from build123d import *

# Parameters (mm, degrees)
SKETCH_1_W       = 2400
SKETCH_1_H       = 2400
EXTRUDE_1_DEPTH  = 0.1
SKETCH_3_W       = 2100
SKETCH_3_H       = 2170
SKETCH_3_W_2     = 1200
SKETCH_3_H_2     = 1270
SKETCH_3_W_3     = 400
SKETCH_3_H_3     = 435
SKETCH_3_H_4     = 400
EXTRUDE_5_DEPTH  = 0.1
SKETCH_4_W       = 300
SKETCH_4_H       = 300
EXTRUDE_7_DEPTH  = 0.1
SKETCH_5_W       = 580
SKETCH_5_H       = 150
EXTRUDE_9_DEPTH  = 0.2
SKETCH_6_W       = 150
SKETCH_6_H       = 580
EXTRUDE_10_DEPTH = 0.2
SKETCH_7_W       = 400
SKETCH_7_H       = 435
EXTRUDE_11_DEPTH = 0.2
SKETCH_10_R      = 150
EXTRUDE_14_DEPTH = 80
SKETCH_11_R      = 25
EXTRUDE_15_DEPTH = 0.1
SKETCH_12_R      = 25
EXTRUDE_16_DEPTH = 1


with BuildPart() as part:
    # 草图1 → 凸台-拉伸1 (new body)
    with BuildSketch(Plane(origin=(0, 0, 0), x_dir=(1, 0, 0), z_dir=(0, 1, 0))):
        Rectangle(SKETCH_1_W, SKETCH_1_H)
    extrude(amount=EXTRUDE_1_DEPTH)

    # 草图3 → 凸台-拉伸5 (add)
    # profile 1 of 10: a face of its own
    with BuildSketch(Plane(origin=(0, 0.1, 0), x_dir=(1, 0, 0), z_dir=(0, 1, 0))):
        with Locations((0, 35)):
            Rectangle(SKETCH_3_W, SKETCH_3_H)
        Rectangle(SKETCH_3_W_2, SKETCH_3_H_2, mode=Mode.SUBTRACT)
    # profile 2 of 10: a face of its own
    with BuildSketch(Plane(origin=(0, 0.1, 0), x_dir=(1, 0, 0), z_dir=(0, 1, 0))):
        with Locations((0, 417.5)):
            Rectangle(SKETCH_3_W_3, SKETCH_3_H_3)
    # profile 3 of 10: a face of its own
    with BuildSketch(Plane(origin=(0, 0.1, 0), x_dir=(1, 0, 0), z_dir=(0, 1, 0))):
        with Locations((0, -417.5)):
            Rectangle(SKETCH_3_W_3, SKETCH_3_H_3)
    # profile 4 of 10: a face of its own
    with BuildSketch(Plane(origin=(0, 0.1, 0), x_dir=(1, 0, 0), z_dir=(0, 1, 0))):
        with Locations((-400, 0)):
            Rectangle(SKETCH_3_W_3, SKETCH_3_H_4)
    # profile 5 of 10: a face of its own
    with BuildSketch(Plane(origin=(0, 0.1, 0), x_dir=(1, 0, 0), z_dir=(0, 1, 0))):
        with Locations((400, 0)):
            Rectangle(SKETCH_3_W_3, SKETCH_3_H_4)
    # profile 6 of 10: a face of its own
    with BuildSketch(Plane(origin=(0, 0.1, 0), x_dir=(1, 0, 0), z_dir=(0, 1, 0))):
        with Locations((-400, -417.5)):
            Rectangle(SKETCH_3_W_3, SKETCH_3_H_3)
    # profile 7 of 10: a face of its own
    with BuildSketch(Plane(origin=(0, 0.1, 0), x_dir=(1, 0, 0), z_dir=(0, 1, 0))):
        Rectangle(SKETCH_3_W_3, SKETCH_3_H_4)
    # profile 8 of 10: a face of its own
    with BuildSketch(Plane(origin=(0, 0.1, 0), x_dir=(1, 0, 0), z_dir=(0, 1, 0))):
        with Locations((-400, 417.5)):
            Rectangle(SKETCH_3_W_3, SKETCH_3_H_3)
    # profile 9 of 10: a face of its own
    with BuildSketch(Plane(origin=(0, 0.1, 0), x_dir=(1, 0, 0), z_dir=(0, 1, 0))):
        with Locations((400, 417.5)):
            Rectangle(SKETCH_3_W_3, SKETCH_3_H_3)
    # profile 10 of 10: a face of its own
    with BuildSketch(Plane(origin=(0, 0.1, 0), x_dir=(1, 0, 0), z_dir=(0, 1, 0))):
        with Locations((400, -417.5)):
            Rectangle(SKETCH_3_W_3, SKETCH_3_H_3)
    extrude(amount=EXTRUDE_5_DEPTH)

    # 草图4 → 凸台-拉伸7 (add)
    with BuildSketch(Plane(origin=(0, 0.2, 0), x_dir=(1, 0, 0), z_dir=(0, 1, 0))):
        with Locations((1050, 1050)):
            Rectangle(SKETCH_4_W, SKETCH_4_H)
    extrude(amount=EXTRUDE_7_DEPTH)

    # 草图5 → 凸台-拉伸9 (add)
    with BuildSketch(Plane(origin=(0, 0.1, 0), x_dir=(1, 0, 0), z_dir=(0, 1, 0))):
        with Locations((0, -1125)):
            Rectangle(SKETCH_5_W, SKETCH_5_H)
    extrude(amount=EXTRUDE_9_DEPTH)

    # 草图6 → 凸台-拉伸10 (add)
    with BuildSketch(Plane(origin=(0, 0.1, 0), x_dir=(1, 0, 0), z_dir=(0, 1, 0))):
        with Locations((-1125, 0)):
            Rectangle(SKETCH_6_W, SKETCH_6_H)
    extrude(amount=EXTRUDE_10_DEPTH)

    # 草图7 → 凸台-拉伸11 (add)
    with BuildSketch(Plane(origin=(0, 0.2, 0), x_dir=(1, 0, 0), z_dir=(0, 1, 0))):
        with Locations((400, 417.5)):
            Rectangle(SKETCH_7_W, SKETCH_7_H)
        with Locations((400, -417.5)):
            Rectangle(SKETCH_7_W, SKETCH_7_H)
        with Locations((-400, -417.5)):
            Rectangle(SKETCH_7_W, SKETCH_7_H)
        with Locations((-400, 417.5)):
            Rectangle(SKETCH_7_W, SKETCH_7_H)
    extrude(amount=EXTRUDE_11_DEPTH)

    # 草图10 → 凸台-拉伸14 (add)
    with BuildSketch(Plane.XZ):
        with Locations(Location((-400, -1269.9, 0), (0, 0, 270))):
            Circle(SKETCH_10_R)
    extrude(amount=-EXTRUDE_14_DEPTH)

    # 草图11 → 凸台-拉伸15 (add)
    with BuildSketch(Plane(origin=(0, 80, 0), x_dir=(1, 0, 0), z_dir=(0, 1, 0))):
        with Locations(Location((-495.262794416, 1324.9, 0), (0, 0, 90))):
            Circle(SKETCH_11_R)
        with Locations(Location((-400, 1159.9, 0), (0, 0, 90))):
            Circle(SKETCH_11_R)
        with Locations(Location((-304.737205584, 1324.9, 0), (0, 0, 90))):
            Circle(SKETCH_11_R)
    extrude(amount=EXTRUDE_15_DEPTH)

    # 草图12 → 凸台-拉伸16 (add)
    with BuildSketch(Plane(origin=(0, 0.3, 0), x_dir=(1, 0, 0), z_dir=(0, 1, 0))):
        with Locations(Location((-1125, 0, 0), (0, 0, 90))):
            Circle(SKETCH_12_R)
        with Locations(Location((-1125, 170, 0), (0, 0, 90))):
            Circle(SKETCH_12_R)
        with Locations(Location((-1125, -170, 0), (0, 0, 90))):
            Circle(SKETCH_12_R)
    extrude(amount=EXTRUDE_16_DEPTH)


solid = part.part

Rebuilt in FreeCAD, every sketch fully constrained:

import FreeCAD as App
import Part
import Sketcher

V = App.Vector
Q = App.Units.Quantity


def add_polygon(sketch, points):
    """Adds a closed chain of lines whose ends are joined by coincident constraints."""
    first, n = sketch.GeometryCount, len(points)
    for a, b in zip(points, points[1:] + points[:1]):
        sketch.addGeometry(Part.LineSegment(App.Vector(*a, 0), App.Vector(*b, 0)), False)
    for i in range(n):
        sketch.addConstraint(Sketcher.Constraint("Coincident", first + i, 2, first + (i + 1) % n, 1))

doc = App.newDocument("Part")
body = doc.addObject("PartDesign::Body", "Body")

# Sketch on XZ plane
sketch1 = body.newObject("Sketcher::SketchObject", "Sketch")
sketch1.AttachmentSupport = (doc.getObject("XZ_Plane"), [""])
sketch1.MapMode = "FlatFace"
add_polygon(sketch1, [(-1200, -1200), (-1200, 1200), (1200, 1200), (1200, -1200)])  # lines 0-3
sketch1.addConstraint([
    Sketcher.Constraint("Vertical", 0),
    Sketcher.Constraint("Horizontal", 1),
    Sketcher.Constraint("Vertical", 2),
    Sketcher.Constraint("Horizontal", 3),
    Sketcher.Constraint("Symmetric", 0, 2, 2, 2, -1, 1),
    Sketcher.Constraint("Equal", 3, 0),
    Sketcher.Constraint("DistanceX", 1, 1, 1, 2, Q("2400 mm")),
])
pad1 = body.newObject("PartDesign::Pad", "Pad")
pad1.Profile = sketch1
pad1.Length = 0.1
pad1.Reversed = True

# Sketch on XZ plane
sketch2 = body.newObject("Sketcher::SketchObject", "Sketch001")
sketch2.AttachmentSupport = (doc.getObject("XZ_Plane"), [""])
sketch2.MapMode = "FlatFace"
sketch2.AttachmentOffset = App.Placement(V(0, 0, -0.1), App.Rotation())
add_polygon(sketch2, [(-1050, -1120), (-1050, 1050), (1050, 1050), (1050, -1120)])  # lines 0-3
sketch2.addConstraint([
    Sketcher.Constraint("Vertical", 0),
    Sketcher.Constraint("Horizontal", 1),
    Sketcher.Constraint("Vertical", 2),
    Sketcher.Constraint("Horizontal", 3),
    Sketcher.Constraint("DistanceX", 1, 1, 1, 2, Q("2100 mm")),
    Sketcher.Constraint("DistanceY", 0, 1, 0, 2, Q("2170 mm")),
    Sketcher.Constraint("DistanceX", 0, 2, -1, 1, Q("1050 mm")),
    Sketcher.Constraint("DistanceY", -1, 1, 0, 2, Q("1050 mm")),
])
pad2 = body.newObject("PartDesign::Pad", "Pad001")
pad2.Profile = sketch2
pad2.Length = 0.1
pad2.Reversed = True

# Sketch on XZ plane
sketch3 = body.newObject("Sketcher::SketchObject", "Sketch002")
sketch3.AttachmentSupport = (doc.getObject("XZ_Plane"), [""])
sketch3.MapMode = "FlatFace"
sketch3.AttachmentOffset = App.Placement(V(0, 0, -0.2), App.Rotation())
add_polygon(sketch3, [(900, -1200), (900, -900), (1200, -900), (1200, -1200)])  # lines 0-3
sketch3.addConstraint([
    Sketcher.Constraint("Vertical", 0),
    Sketcher.Constraint("Horizontal", 1),
    Sketcher.Constraint("Vertical", 2),
    Sketcher.Constraint("Horizontal", 3),
    Sketcher.Constraint("Equal", 3, 0),
    Sketcher.Constraint("DistanceX", 1, 1, 1, 2, Q("300 mm")),
    Sketcher.Constraint("DistanceX", -1, 1, 0, 2, Q("900 mm")),
    Sketcher.Constraint("DistanceY", 0, 2, -1, 1, Q("900 mm")),
])
pad3 = body.newObject("PartDesign::Pad", "Pad002")
pad3.Profile = sketch3
pad3.Length = 0.1
pad3.Reversed = True

# Sketch on XZ plane
sketch4 = body.newObject("Sketcher::SketchObject", "Sketch003")
sketch4.AttachmentSupport = (doc.getObject("XZ_Plane"), [""])
sketch4.MapMode = "FlatFace"
sketch4.AttachmentOffset = App.Placement(V(0, 0, -0.1), App.Rotation())
add_polygon(sketch4, [(-290, 1050), (-290, 1200), (290, 1200), (290, 1050)])  # lines 0-3
sketch4.addConstraint([
    Sketcher.Constraint("Vertical", 0),
    Sketcher.Constraint("Horizontal", 1),
    Sketcher.Constraint("Vertical", 2),
    Sketcher.Constraint("Horizontal", 3),
    Sketcher.Constraint("DistanceX", 1, 1, 1, 2, Q("580 mm")),
    Sketcher.Constraint("DistanceY", 0, 1, 0, 2, Q("150 mm")),
    Sketcher.Constraint("DistanceX", 0, 2, -1, 1, Q("290 mm")),
    Sketcher.Constraint("DistanceY", -1, 1, 0, 2, Q("1200 mm")),
])
pad4 = body.newObject("PartDesign::Pad", "Pad003")
pad4.Profile = sketch4
pad4.Length = 0.2
pad4.Reversed = True

# Sketch on XZ plane
sketch5 = body.newObject("Sketcher::SketchObject", "Sketch004")
sketch5.AttachmentSupport = (doc.getObject("XZ_Plane"), [""])
sketch5.MapMode = "FlatFace"
sketch5.AttachmentOffset = App.Placement(V(0, 0, -0.1), App.Rotation())
add_polygon(sketch5, [(-1200, -290), (-1200, 290), (-1050, 290), (-1050, -290)])  # lines 0-3
sketch5.addConstraint([
    Sketcher.Constraint("Vertical", 0),
    Sketcher.Constraint("Horizontal", 1),
    Sketcher.Constraint("Vertical", 2),
    Sketcher.Constraint("Horizontal", 3),
    Sketcher.Constraint("DistanceX", 1, 1, 1, 2, Q("150 mm")),
    Sketcher.Constraint("DistanceY", 0, 1, 0, 2, Q("580 mm")),
    Sketcher.Constraint("DistanceX", 0, 2, -1, 1, Q("1200 mm")),
    Sketcher.Constraint("DistanceY", -1, 1, 0, 2, Q("290 mm")),
])
pad5 = body.newObject("PartDesign::Pad", "Pad004")
pad5.Profile = sketch5
pad5.Length = 0.2
pad5.Reversed = True

# Sketch on XZ plane
sketch6 = body.newObject("Sketcher::SketchObject", "Sketch005")
sketch6.AttachmentSupport = (doc.getObject("XZ_Plane"), [""])
sketch6.MapMode = "FlatFace"
sketch6.AttachmentOffset = App.Placement(V(0, 0, -0.2), App.Rotation())
add_polygon(sketch6, [(200, -635), (200, -200), (600, -200), (600, -635)])  # lines 0-3
add_polygon(sketch6, [(200, 200), (200, 635), (600, 635), (600, 200)])  # lines 4-7
add_polygon(sketch6, [(-600, 200), (-600, 635), (-200, 635), (-200, 200)])  # lines 8-11
add_polygon(sketch6, [(-600, -635), (-600, -200), (-200, -200), (-200, -635)])  # lines 12-15
sketch6.addConstraint([
    Sketcher.Constraint("Vertical", 0),
    Sketcher.Constraint("Horizontal", 1),
    Sketcher.Constraint("Vertical", 2),
    Sketcher.Constraint("Horizontal", 3),
    Sketcher.Constraint("Vertical", 4),
    Sketcher.Constraint("Horizontal", 5),
    Sketcher.Constraint("Vertical", 6),
    Sketcher.Constraint("Horizontal", 7),
    Sketcher.Constraint("Vertical", 8),
    Sketcher.Constraint("Horizontal", 9),
    Sketcher.Constraint("Vertical", 10),
    Sketcher.Constraint("Horizontal", 11),
    Sketcher.Constraint("Vertical", 12),
    Sketcher.Constraint("Horizontal", 13),
    Sketcher.Constraint("Vertical", 14),
    Sketcher.Constraint("Horizontal", 15),
    Sketcher.Constraint("Symmetric", 2, 2, 8, 2, -1, 1),
    Sketcher.Constraint("Symmetric", 0, 2, 10, 2, -1, 1),
    Sketcher.Constraint("Symmetric", 6, 2, 12, 2, -1, 1),
    Sketcher.Constraint("Symmetric", 4, 2, 14, 2, -1, 1),
    Sketcher.Constraint("Symmetric", 5, 2, 8, 2, -2),
    Sketcher.Constraint("Symmetric", 7, 2, 10, 2, -2),
    Sketcher.Constraint("DistanceX", 1, 1, 1, 2, Q("400 mm")),
    Sketcher.Constraint("DistanceY", 0, 1, 0, 2, Q("435 mm")),
    Sketcher.Constraint("DistanceX", -1, 1, 0, 2, Q("200 mm")),
    Sketcher.Constraint("DistanceY", 0, 2, -1, 1, Q("200 mm")),
])
pad6 = body.newObject("PartDesign::Pad", "Pad005")
pad6.Profile = sketch6
pad6.Length = 0.2
pad6.Reversed = True

# Sketch on XZ plane
sketch7 = body.newObject("Sketcher::SketchObject", "Sketch006")
sketch7.AttachmentSupport = (doc.getObject("XZ_Plane"), [""])
sketch7.MapMode = "FlatFace"
sketch7.addGeometry(Part.Circle(V(-400, -1270, 0), V(0, 0, 1), 150), False)
sketch7.addConstraint([
    Sketcher.Constraint("Diameter", 0, Q("300 mm")),
    Sketcher.Constraint("DistanceX", 0, 3, -1, 1, Q("400 mm")),
    Sketcher.Constraint("DistanceY", 0, 3, -1, 1, Q("1269.9 mm")),
])
pad7 = body.newObject("PartDesign::Pad", "Pad006")
pad7.Profile = sketch7
pad7.Length = 80
pad7.Reversed = True

# Sketch on XZ plane
sketch8 = body.newObject("Sketcher::SketchObject", "Sketch007")
sketch8.AttachmentSupport = (doc.getObject("XZ_Plane"), [""])
sketch8.MapMode = "FlatFace"
sketch8.AttachmentOffset = App.Placement(V(0, 0, -80), App.Rotation())
sketch8.addGeometry([
    Part.Circle(V(-495, -1325, 0), V(0, 0, 1), 25),
    Part.Circle(V(-400, -1160, 0), V(0, 0, 1), 25),
    Part.Circle(V(-305, -1325, 0), V(0, 0, 1), 25),
], False)
sketch8.addConstraint([
    Sketcher.Constraint("Equal", 0, 1),
    Sketcher.Constraint("Equal", 1, 2),
    Sketcher.Constraint("Horizontal", 0, 3, 2, 3),
    Sketcher.Constraint("Diameter", 0, Q("50 mm")),
    Sketcher.Constraint("DistanceX", 1, 3, -1, 1, Q("400 mm")),
    Sketcher.Constraint("DistanceY", 0, 3, 1, 3, Q("165 mm")),
    Sketcher.Constraint("DistanceY", 0, 3, -1, 1, Q("1324.9 mm")),
    Sketcher.Constraint("DistanceX", 0, 3, 2, 3, Q("190.525589 mm")),
    Sketcher.Constraint("DistanceX", 0, 3, -1, 1, Q("495.262794 mm")),
])
pad8 = body.newObject("PartDesign::Pad", "Pad007")
pad8.Profile = sketch8
pad8.Length = 0.1
pad8.Reversed = True

# Sketch on XZ plane
sketch9 = body.newObject("Sketcher::SketchObject", "Sketch008")
sketch9.AttachmentSupport = (doc.getObject("XZ_Plane"), [""])
sketch9.MapMode = "FlatFace"
sketch9.AttachmentOffset = App.Placement(V(0, 0, -0.3), App.Rotation())
sketch9.addGeometry([
    Part.Circle(V(-1125, 0, 0), V(0, 0, 1), 25),
    Part.Circle(V(-1125, -170, 0), V(0, 0, 1), 25),
    Part.Circle(V(-1125, 170, 0), V(0, 0, 1), 25),
], False)
sketch9.addConstraint([
    Sketcher.Constraint("Equal", 0, 1),
    Sketcher.Constraint("Equal", 1, 2),
    Sketcher.Constraint("Symmetric", 1, 3, 2, 3, -1),
    Sketcher.Constraint("PointOnObject", 0, 3, -1),
    Sketcher.Constraint("Vertical", 0, 3, 1, 3),
    Sketcher.Constraint("Diameter", 0, Q("50 mm")),
    Sketcher.Constraint("DistanceX", 0, 3, -1, 1, Q("1125 mm")),
    Sketcher.Constraint("DistanceY", 1, 3, -1, 1, Q("170 mm")),
])
pad9 = body.newObject("PartDesign::Pad", "Pad008")
pad9.Profile = sketch9
pad9.Length = 1
pad9.Reversed = True

doc.recompute()
